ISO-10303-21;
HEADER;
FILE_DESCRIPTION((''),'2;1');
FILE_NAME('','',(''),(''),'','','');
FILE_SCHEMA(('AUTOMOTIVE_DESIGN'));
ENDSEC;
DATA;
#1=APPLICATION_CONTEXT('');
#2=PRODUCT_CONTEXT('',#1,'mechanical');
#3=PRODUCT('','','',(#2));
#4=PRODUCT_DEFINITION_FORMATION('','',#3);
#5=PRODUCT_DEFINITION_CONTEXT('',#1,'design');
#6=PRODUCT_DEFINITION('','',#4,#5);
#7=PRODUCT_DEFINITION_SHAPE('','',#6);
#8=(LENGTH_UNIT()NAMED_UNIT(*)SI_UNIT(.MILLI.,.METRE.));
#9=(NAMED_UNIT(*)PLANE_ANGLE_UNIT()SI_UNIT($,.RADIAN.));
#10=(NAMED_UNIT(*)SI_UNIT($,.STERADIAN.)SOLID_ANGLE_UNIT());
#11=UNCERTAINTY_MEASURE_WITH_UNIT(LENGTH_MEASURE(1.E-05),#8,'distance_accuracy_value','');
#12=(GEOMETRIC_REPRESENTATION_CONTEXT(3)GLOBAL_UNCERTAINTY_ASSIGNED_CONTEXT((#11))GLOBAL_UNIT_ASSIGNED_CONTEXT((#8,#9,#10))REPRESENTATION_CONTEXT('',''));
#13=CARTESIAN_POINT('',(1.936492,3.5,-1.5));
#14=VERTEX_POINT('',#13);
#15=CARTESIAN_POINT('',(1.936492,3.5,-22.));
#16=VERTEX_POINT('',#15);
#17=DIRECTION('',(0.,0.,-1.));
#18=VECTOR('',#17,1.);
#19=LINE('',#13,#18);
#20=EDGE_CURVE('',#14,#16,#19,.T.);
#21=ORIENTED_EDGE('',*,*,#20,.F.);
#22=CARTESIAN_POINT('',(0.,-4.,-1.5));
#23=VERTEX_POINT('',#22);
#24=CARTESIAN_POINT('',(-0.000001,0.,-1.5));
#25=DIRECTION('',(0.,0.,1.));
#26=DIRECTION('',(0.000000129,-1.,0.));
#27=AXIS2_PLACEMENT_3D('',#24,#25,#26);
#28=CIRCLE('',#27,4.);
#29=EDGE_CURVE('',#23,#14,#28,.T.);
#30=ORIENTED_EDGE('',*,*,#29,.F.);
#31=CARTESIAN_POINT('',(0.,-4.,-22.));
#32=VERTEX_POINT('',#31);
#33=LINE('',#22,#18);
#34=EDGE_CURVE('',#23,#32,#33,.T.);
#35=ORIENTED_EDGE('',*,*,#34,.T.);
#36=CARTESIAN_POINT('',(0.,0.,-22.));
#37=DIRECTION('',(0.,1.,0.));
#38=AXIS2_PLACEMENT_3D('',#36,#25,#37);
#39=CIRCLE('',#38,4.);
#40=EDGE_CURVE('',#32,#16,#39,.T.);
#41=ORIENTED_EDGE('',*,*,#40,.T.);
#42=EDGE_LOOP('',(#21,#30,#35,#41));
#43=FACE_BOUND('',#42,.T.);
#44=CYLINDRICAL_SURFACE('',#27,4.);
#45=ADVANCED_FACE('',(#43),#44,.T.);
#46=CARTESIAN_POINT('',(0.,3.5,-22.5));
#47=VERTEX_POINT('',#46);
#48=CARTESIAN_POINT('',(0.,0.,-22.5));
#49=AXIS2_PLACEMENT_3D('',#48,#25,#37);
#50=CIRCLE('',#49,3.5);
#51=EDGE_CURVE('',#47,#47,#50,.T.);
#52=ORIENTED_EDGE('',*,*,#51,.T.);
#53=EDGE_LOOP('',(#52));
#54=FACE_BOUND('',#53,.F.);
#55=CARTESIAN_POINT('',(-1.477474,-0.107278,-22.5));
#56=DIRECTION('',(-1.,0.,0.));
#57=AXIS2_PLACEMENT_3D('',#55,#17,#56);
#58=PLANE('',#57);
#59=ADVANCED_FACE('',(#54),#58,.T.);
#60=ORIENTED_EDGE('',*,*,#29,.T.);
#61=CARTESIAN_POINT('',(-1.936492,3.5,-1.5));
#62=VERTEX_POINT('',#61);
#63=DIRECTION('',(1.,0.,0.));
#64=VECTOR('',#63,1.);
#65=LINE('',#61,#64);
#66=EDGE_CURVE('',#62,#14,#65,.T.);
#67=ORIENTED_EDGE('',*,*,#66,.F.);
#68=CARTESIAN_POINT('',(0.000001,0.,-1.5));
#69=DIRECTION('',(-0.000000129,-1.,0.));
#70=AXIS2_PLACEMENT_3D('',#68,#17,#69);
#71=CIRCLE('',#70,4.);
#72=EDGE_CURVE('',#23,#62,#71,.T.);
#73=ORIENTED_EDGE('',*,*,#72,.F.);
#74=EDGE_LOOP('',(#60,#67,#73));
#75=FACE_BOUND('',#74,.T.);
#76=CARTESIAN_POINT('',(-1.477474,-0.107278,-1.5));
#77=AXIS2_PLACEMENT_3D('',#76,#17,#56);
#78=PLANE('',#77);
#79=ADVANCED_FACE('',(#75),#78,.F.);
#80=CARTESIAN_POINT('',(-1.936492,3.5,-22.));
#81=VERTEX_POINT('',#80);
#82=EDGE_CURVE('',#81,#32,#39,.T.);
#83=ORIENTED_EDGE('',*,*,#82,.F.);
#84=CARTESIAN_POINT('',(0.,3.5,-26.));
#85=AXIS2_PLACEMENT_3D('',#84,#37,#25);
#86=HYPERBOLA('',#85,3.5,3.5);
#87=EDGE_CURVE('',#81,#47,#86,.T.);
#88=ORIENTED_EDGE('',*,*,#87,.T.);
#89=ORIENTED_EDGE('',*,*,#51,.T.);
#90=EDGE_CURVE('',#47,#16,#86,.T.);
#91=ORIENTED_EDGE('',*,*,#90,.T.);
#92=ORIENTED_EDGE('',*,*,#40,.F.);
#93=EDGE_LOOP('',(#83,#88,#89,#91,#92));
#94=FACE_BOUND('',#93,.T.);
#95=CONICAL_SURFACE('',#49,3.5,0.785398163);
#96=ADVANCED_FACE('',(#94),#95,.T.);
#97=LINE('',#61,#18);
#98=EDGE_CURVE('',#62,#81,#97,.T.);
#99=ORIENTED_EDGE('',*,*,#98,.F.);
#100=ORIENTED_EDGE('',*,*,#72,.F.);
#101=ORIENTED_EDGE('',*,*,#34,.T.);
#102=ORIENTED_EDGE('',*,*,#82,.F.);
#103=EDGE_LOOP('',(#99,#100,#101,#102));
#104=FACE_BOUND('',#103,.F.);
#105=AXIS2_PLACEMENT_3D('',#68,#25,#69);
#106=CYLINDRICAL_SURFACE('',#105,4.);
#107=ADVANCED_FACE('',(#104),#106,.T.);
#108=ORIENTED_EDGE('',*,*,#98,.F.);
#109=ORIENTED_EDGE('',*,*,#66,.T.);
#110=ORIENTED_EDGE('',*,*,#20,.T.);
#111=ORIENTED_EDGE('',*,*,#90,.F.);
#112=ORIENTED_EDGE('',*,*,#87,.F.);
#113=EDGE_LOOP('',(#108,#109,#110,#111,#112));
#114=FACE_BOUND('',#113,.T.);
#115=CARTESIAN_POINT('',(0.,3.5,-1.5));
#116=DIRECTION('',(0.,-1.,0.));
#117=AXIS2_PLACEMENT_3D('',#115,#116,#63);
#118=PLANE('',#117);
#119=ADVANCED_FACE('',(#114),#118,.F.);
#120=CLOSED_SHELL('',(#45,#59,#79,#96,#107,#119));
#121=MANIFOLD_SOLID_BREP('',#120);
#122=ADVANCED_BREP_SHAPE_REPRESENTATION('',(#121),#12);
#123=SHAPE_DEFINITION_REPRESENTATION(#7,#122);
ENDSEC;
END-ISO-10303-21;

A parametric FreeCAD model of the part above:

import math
import FreeCAD as App
import Part
import Sketcher

V = App.Vector

doc = App.newDocument("Part")
body = doc.addObject("PartDesign::Body", "Body")

# Sketch on XY plane
sketch1 = body.newObject("Sketcher::SketchObject", "Sketch")
sketch1.AttachmentSupport = (doc.getObject("XY_Plane"), [""])
sketch1.MapMode = "FlatFace"
sketch1.addGeometry([
    Part.LineSegment(V(1.9, 3.5, 0), V(0, 3.5, 0)),
    Part.LineSegment(V(0, 3.5, 0), V(0, -4, 0)),
    Part.ArcOfCircle(Part.Circle(V(0, 0, 0), V(0, 0, 1), 4), math.radians(-90), math.radians(61)),
], False)
sketch1.addConstraint([
    Sketcher.Constraint("Coincident", 0, 2, 1, 1),
    Sketcher.Constraint("Coincident", 1, 2, 2, 1),
    Sketcher.Constraint("Coincident", 2, 2, 0, 1),
    Sketcher.Constraint("Horizontal", 0),
    Sketcher.Constraint("Vertical", 1),
    Sketcher.Constraint("Coincident", 2, 3, -1, 1),
    Sketcher.Constraint("PointOnObject", 0, 2, -2),
    Sketcher.Constraint("Radius", 2, 4.0),
    Sketcher.Constraint("DistanceY", 1, 2, 1, 1, 7.5),
])
pad1 = body.newObject("PartDesign::Pad", "Pad")
pad1.Profile = sketch1
pad1.Length = 21
pad1.Reversed = True
doc.recompute()

mirrored = body.newObject("PartDesign::Mirrored", "Mirrored")
mirrored.Originals = [pad1]
mirrored.MirrorPlane = (doc.getObject("YZ_Plane"), [""])
body.Tip = mirrored

# Sketch on YZ plane
sketch2 = body.newObject("Sketcher::SketchObject", "Sketch001")
sketch2.AttachmentSupport = (doc.getObject("YZ_Plane"), [""])
sketch2.MapMode = "FlatFace"
sketch2.addGeometry([
    Part.LineSegment(V(4, -20.5, 0), V(3.5, -21, 0)),
    Part.LineSegment(V(3.5, -21, 0), V(4, -21, 0)),
    Part.LineSegment(V(4, -21, 0), V(4, -20.5, 0)),
], False)
sketch2.addConstraint([
    Sketcher.Constraint("Coincident", 0, 2, 1, 1),
    Sketcher.Constraint("Coincident", 1, 2, 2, 1),
    Sketcher.Constraint("Coincident", 2, 2, 0, 1),
    Sketcher.Constraint("Horizontal", 1),
    Sketcher.Constraint("Vertical", 2),
    Sketcher.Constraint("Equal", 1, 2),
    Sketcher.Constraint("DistanceX", 1, 1, 1, 2, 0.5),
    Sketcher.Constraint("DistanceY", 0, 2, -1, 1, 21.0),
    Sketcher.Constraint("DistanceX", -1, 1, 1, 2, 4.0),
])
groove = body.newObject("PartDesign::Groove", "Groove")
groove.Profile = sketch2
groove.ReferenceAxis = (sketch2, ["V_Axis"])
groove.Angle = 360
body2 = doc.addObject("PartDesign::Body", "Body001")
doc.recompute()

body.Placement = App.Placement(V(0, 0, -1.5), App.Rotation(V(0, 0, 1), 0))
boolean = body2.newObject("PartDesign::Boolean", "Boolean")
boolean.Type = "Fuse"
boolean.addObjects([body])

doc.recompute()
